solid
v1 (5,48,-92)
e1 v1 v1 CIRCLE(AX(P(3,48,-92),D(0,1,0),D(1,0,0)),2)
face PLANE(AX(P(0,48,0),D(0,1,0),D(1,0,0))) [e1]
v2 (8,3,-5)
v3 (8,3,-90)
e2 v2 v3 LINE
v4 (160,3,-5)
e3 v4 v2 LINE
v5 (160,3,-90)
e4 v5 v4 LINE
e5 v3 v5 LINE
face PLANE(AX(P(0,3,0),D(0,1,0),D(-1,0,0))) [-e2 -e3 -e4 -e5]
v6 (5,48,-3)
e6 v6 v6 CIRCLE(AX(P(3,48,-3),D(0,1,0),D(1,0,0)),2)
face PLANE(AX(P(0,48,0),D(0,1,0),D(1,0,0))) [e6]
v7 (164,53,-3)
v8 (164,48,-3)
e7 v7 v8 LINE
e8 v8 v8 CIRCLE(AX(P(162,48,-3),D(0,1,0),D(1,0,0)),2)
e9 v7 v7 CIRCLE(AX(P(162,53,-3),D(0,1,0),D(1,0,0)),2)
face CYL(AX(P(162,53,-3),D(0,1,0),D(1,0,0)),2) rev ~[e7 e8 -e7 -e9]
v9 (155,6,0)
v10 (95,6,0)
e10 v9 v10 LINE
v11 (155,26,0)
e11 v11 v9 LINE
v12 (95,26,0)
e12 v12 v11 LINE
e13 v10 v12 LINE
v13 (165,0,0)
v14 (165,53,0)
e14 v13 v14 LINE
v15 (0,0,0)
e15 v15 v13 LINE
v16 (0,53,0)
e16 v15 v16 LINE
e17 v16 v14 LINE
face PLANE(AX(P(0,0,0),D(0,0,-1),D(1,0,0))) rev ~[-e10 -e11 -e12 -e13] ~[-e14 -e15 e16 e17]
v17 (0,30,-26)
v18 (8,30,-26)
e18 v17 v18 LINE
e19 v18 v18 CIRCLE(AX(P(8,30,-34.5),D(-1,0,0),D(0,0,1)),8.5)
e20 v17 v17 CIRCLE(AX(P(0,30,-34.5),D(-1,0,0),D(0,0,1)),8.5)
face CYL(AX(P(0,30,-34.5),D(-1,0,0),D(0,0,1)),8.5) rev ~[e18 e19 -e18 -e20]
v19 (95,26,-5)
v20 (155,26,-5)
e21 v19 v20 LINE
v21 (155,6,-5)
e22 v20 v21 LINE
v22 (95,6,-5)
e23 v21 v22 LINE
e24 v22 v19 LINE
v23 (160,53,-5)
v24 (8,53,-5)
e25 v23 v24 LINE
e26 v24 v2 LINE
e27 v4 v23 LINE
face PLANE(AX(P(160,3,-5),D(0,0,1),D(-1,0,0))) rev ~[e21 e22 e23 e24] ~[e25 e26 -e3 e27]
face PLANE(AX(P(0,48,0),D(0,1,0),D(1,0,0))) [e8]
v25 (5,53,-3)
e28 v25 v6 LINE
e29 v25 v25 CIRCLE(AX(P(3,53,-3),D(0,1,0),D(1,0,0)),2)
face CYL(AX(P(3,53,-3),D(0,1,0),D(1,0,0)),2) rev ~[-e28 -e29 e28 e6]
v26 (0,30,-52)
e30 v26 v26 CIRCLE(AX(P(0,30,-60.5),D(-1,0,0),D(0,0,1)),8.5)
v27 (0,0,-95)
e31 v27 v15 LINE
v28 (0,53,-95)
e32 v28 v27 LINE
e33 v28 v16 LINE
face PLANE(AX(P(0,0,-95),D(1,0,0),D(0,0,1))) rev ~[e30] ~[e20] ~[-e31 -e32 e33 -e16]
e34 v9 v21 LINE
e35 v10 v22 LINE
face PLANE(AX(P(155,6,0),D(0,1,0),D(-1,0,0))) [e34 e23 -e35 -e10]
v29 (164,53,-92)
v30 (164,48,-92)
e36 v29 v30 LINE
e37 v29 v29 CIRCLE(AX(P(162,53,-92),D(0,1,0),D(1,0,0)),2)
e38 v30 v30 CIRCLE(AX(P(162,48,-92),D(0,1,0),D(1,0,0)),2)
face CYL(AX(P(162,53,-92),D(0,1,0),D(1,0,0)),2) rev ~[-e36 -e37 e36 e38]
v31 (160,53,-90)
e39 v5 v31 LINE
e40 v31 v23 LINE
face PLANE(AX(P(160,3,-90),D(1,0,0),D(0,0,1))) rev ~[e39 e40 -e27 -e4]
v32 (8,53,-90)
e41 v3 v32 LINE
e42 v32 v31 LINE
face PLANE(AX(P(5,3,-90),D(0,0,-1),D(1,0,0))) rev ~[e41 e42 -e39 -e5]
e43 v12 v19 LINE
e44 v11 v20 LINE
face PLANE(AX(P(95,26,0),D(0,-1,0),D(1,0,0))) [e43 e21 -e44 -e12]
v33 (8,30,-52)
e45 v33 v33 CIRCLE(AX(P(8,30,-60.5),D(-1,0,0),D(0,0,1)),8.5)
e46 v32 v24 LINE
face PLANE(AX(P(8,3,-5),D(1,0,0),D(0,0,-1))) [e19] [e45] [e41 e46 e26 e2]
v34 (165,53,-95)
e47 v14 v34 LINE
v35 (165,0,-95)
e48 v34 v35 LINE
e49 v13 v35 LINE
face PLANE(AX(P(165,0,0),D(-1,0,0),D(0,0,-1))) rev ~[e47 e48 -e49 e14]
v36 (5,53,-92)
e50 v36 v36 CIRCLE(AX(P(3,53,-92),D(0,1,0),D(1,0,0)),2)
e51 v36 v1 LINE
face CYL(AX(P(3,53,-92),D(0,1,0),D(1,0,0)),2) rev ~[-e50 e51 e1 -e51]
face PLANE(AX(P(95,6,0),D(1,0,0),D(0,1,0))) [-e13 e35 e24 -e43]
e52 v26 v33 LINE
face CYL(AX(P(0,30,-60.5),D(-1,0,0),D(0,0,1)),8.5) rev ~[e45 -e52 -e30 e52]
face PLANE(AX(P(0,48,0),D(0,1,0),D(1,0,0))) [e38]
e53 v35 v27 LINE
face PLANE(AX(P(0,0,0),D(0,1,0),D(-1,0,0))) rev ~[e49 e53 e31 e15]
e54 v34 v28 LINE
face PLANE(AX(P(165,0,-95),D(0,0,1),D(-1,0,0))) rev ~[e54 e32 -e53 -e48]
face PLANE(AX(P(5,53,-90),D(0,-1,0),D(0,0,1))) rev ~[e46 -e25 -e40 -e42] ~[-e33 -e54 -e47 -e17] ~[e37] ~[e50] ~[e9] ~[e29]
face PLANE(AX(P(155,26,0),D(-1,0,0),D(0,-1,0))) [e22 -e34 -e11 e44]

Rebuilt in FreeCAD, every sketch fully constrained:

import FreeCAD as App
import Part
import Sketcher

V = App.Vector

doc = App.newDocument("Part")
params = doc.addObject("Spreadsheet::Sheet", "Params")
for row, (alias, value) in enumerate([
    ("sketch1_width", "165 mm"),
    ("sketch1_height", "95 mm"),
    ("pad1_length", "3 mm"),
    ("sketch2_width", "165 mm"),
    ("sketch2_height", "95 mm"),
    ("pad2_length", "50 mm"),
    ("sketch3_diameter", "4 mm"),
    ("pocket1_length", "5 mm"),
    ("sketch4_width", "50 mm"),
    ("sketch4_height", "85 mm"),
    ("pad3_length", "3 mm"),
    ("sketch5_diameter", "17 mm"),
    ("pocket2_length", "60 mm"),
    ("sketch6_width", "60 mm"),
    ("sketch6_height", "20 mm"),
    ("pocket3_length", "10 mm"),
], start=1):
    params.set(f"A{row}", alias)
    params.set(f"B{row}", "=" + value)
    params.setAlias(f"B{row}", alias)

body = doc.addObject("PartDesign::Body", "Body")

# Sketch on XZ plane
sketch1 = body.newObject("Sketcher::SketchObject", "Sketch")
sketch1.AttachmentSupport = (doc.getObject("XZ_Plane"), [""])
sketch1.MapMode = "FlatFace"
sketch1.addGeometry([
    Part.LineSegment(V(0, -95, 0), V(0, 0, 0)),
    Part.LineSegment(V(0, 0, 0), V(165, 0, 0)),
    Part.LineSegment(V(165, 0, 0), V(165, -95, 0)),
    Part.LineSegment(V(165, -95, 0), V(0, -95, 0)),
], False)
sketch1.addConstraint([
    Sketcher.Constraint("Coincident", 0, 2, 1, 1),
    Sketcher.Constraint("Coincident", 1, 2, 2, 1),
    Sketcher.Constraint("Coincident", 2, 2, 3, 1),
    Sketcher.Constraint("Coincident", 3, 2, 0, 1),
    Sketcher.Constraint("Vertical", 0),
    Sketcher.Constraint("Horizontal", 1),
    Sketcher.Constraint("Vertical", 2),
    Sketcher.Constraint("Horizontal", 3),
    Sketcher.Constraint("Coincident", 0, 2, -1, 1),
    Sketcher.Constraint("DistanceX", 1, 1, 1, 2, 165.0),
    Sketcher.Constraint("DistanceY", 0, 1, 0, 2, 95.0),
])
sketch1.setExpression("Constraints[9]", "Params.sketch1_width")
sketch1.setExpression("Constraints[10]", "Params.sketch1_height")
pad1 = body.newObject("PartDesign::Pad", "Pad")
pad1.Profile = sketch1
pad1.setExpression("Length", "Params.pad1_length")
pad1.Reversed = True

# Sketch on XZ plane
sketch2 = body.newObject("Sketcher::SketchObject", "Sketch001")
sketch2.AttachmentSupport = (doc.getObject("XZ_Plane"), [""])
sketch2.MapMode = "FlatFace"
sketch2.AttachmentOffset = App.Placement(V(0, 0, -3), App.Rotation())
sketch2.addGeometry([
    Part.LineSegment(V(165, 0, 0), V(165, -95, 0)),  # 0
    Part.LineSegment(V(165, -95, 0), V(0, -95, 0)),  # 1
    Part.LineSegment(V(0, -95, 0), V(0, 0, 0)),  # 2
    Part.LineSegment(V(0, 0, 0), V(165, 0, 0)),  # 3
    Part.LineSegment(V(5, -5, 0), V(5, -90, 0)),  # 4
    Part.LineSegment(V(5, -90, 0), V(160, -90, 0)),  # 5
    Part.LineSegment(V(160, -90, 0), V(160, -5, 0)),  # 6
    Part.LineSegment(V(160, -5, 0), V(5, -5, 0)),  # 7
], False)
sketch2.addConstraint([
    Sketcher.Constraint("Coincident", 0, 2, 1, 1),
    Sketcher.Constraint("Coincident", 1, 2, 2, 1),
    Sketcher.Constraint("Coincident", 2, 2, 3, 1),
    Sketcher.Constraint("Coincident", 3, 2, 0, 1),
    Sketcher.Constraint("Coincident", 4, 2, 5, 1),
    Sketcher.Constraint("Coincident", 5, 2, 6, 1),
    Sketcher.Constraint("Coincident", 6, 2, 7, 1),
    Sketcher.Constraint("Coincident", 7, 2, 4, 1),
    Sketcher.Constraint("Vertical", 0),
    Sketcher.Constraint("Horizontal", 1),
    Sketcher.Constraint("Vertical", 2),
    Sketcher.Constraint("Horizontal", 3),
    Sketcher.Constraint("Vertical", 4),
    Sketcher.Constraint("Horizontal", 5),
    Sketcher.Constraint("Vertical", 6),
    Sketcher.Constraint("Horizontal", 7),
    Sketcher.Constraint("Coincident", 2, 2, -1, 1),
    Sketcher.Constraint("DistanceX", -1, 1, 4, 2, 5.0),
    Sketcher.Constraint("DistanceY", 6, 2, -1, 1, 5.0),
    Sketcher.Constraint("DistanceY", 1, 2, 4, 2, 5.0),
    Sketcher.Constraint("DistanceX", 5, 2, 0, 2, 5.0),
    Sketcher.Constraint("DistanceX", 1, 2, 1, 1, 165.0),
    Sketcher.Constraint("DistanceY", 0, 2, 0, 1, 95.0),
])
sketch2.setExpression("Constraints[21]", "Params.sketch2_width")
sketch2.setExpression("Constraints[22]", "Params.sketch2_height")
pad2 = body.newObject("PartDesign::Pad", "Pad001")
pad2.Profile = sketch2
pad2.setExpression("Length", "Params.pad2_length")
pad2.Reversed = True

# Sketch on XZ plane
sketch3 = body.newObject("Sketcher::SketchObject", "Sketch002")
sketch3.AttachmentSupport = (doc.getObject("XZ_Plane"), [""])
sketch3.MapMode = "FlatFace"
sketch3.AttachmentOffset = App.Placement(V(0, 0, -53), App.Rotation())
sketch3.addGeometry([
    Part.Circle(V(3, -92, 0), V(0, 0, 1), 2),
    Part.Circle(V(3, -3, 0), V(0, 0, 1), 2),
    Part.Circle(V(162, -3, 0), V(0, 0, 1), 2),
    Part.Circle(V(162, -92, 0), V(0, 0, 1), 2),
], False)
sketch3.addConstraint([
    Sketcher.Constraint("Equal", 0, 1),
    Sketcher.Constraint("Equal", 1, 2),
    Sketcher.Constraint("Equal", 2, 3),
    Sketcher.Constraint("Horizontal", 1, 3, 2, 3),
    Sketcher.Constraint("Horizontal", 0, 3, 3, 3),
    Sketcher.Constraint("Vertical", 0, 3, 1, 3),
    Sketcher.Constraint("Vertical", 2, 3, 3, 3),
    Sketcher.Constraint("Diameter", 0, 4.0),
    Sketcher.Constraint("DistanceX", -1, 1, 0, 3, 3.0),
    Sketcher.Constraint("DistanceY", 1, 3, -1, 1, 3.0),
    Sketcher.Constraint("DistanceY", 0, 3, -1, 1, 92.0),
    Sketcher.Constraint("DistanceX", -1, 1, 2, 3, 162.0),
])
sketch3.setExpression("Constraints[7]", "Params.sketch3_diameter")
pocket1 = body.newObject("PartDesign::Pocket", "Pocket")
pocket1.Profile = sketch3
pocket1.setExpression("Length", "Params.pocket1_length")
pocket1.Reversed = True

# Sketch on YZ plane
sketch4 = body.newObject("Sketcher::SketchObject", "Sketch003")
sketch4.AttachmentSupport = (doc.getObject("YZ_Plane"), [""])
sketch4.MapMode = "FlatFace"
sketch4.AttachmentOffset = App.Placement(V(0, 0, 5), App.Rotation())
sketch4.addGeometry([
    Part.LineSegment(V(3, -90, 0), V(53, -90, 0)),
    Part.LineSegment(V(53, -90, 0), V(53, -5, 0)),
    Part.LineSegment(V(53, -5, 0), V(3, -5, 0)),
    Part.LineSegment(V(3, -5, 0), V(3, -90, 0)),
], False)
sketch4.addConstraint([
    Sketcher.Constraint("Coincident", 0, 2, 1, 1),
    Sketcher.Constraint("Coincident", 1, 2, 2, 1),
    Sketcher.Constraint("Coincident", 2, 2, 3, 1),
    Sketcher.Constraint("Coincident", 3, 2, 0, 1),
    Sketcher.Constraint("Horizontal", 0),
    Sketcher.Constraint("Vertical", 1),
    Sketcher.Constraint("Horizontal", 2),
    Sketcher.Constraint("Vertical", 3),
    Sketcher.Constraint("DistanceX", 0, 1, 0, 2, 50.0),
    Sketcher.Constraint("DistanceY", 1, 1, 1, 2, 85.0),
    Sketcher.Constraint("DistanceX", -1, 1, 0, 2, 53.0),
    Sketcher.Constraint("DistanceY", 0, 2, -1, 1, 90.0),
])
sketch4.setExpression("Constraints[8]", "Params.sketch4_width")
sketch4.setExpression("Constraints[9]", "Params.sketch4_height")
pad3 = body.newObject("PartDesign::Pad", "Pad002")
pad3.Profile = sketch4
pad3.setExpression("Length", "Params.pad3_length")

# Sketch on YZ plane
sketch5 = body.newObject("Sketcher::SketchObject", "Sketch004")
sketch5.AttachmentSupport = (doc.getObject("YZ_Plane"), [""])
sketch5.MapMode = "FlatFace"
sketch5.addGeometry([
    Part.Circle(V(30, -60, 0), V(0, 0, 1), 8),
    Part.Circle(V(30, -34, 0), V(0, 0, 1), 8),
], False)
sketch5.addConstraint([
    Sketcher.Constraint("Equal", 0, 1),
    Sketcher.Constraint("Vertical", 0, 3, 1, 3),
    Sketcher.Constraint("Diameter", 0, 17.0),
    Sketcher.Constraint("DistanceX", -1, 1, 0, 3, 30.0),
    Sketcher.Constraint("DistanceY", 0, 3, 1, 3, 26.0),
    Sketcher.Constraint("DistanceY", 1, 3, -1, 1, 34.5),
])
sketch5.setExpression("Constraints[2]", "Params.sketch5_diameter")
pocket2 = body.newObject("PartDesign::Pocket", "Pocket001")
pocket2.Profile = sketch5
pocket2.setExpression("Length", "Params.pocket2_length")
pocket2.Reversed = True

# Sketch on XY plane
sketch6 = body.newObject("Sketcher::SketchObject", "Sketch005")
sketch6.AttachmentSupport = (doc.getObject("XY_Plane"), [""])
sketch6.MapMode = "FlatFace"
sketch6.addGeometry([
    Part.LineSegment(V(155, 26, 0), V(95, 26, 0)),
    Part.LineSegment(V(95, 26, 0), V(95, 6, 0)),
    Part.LineSegment(V(95, 6, 0), V(155, 6, 0)),
    Part.LineSegment(V(155, 6, 0), V(155, 26, 0)),
], False)
sketch6.addConstraint([
    Sketcher.Constraint("Coincident", 0, 2, 1, 1),
    Sketcher.Constraint("Coincident", 1, 2, 2, 1),
    Sketcher.Constraint("Coincident", 2, 2, 3, 1),
    Sketcher.Constraint("Coincident", 3, 2, 0, 1),
    Sketcher.Constraint("Horizontal", 0),
    Sketcher.Constraint("Vertical", 1),
    Sketcher.Constraint("Horizontal", 2),
    Sketcher.Constraint("Vertical", 3),
    Sketcher.Constraint("DistanceX", 0, 2, 0, 1, 60.0),
    Sketcher.Constraint("DistanceY", 1, 2, 1, 1, 20.0),
    Sketcher.Constraint("DistanceX", -1, 1, 0, 2, 95.0),
    Sketcher.Constraint("DistanceY", -1, 1, 0, 2, 26.0),
])
sketch6.setExpression("Constraints[8]", "Params.sketch6_width")
sketch6.setExpression("Constraints[9]", "Params.sketch6_height")
pocket3 = body.newObject("PartDesign::Pocket", "Pocket002")
pocket3.Profile = sketch6
pocket3.setExpression("Length", "Params.pocket3_length")

doc.recompute()
